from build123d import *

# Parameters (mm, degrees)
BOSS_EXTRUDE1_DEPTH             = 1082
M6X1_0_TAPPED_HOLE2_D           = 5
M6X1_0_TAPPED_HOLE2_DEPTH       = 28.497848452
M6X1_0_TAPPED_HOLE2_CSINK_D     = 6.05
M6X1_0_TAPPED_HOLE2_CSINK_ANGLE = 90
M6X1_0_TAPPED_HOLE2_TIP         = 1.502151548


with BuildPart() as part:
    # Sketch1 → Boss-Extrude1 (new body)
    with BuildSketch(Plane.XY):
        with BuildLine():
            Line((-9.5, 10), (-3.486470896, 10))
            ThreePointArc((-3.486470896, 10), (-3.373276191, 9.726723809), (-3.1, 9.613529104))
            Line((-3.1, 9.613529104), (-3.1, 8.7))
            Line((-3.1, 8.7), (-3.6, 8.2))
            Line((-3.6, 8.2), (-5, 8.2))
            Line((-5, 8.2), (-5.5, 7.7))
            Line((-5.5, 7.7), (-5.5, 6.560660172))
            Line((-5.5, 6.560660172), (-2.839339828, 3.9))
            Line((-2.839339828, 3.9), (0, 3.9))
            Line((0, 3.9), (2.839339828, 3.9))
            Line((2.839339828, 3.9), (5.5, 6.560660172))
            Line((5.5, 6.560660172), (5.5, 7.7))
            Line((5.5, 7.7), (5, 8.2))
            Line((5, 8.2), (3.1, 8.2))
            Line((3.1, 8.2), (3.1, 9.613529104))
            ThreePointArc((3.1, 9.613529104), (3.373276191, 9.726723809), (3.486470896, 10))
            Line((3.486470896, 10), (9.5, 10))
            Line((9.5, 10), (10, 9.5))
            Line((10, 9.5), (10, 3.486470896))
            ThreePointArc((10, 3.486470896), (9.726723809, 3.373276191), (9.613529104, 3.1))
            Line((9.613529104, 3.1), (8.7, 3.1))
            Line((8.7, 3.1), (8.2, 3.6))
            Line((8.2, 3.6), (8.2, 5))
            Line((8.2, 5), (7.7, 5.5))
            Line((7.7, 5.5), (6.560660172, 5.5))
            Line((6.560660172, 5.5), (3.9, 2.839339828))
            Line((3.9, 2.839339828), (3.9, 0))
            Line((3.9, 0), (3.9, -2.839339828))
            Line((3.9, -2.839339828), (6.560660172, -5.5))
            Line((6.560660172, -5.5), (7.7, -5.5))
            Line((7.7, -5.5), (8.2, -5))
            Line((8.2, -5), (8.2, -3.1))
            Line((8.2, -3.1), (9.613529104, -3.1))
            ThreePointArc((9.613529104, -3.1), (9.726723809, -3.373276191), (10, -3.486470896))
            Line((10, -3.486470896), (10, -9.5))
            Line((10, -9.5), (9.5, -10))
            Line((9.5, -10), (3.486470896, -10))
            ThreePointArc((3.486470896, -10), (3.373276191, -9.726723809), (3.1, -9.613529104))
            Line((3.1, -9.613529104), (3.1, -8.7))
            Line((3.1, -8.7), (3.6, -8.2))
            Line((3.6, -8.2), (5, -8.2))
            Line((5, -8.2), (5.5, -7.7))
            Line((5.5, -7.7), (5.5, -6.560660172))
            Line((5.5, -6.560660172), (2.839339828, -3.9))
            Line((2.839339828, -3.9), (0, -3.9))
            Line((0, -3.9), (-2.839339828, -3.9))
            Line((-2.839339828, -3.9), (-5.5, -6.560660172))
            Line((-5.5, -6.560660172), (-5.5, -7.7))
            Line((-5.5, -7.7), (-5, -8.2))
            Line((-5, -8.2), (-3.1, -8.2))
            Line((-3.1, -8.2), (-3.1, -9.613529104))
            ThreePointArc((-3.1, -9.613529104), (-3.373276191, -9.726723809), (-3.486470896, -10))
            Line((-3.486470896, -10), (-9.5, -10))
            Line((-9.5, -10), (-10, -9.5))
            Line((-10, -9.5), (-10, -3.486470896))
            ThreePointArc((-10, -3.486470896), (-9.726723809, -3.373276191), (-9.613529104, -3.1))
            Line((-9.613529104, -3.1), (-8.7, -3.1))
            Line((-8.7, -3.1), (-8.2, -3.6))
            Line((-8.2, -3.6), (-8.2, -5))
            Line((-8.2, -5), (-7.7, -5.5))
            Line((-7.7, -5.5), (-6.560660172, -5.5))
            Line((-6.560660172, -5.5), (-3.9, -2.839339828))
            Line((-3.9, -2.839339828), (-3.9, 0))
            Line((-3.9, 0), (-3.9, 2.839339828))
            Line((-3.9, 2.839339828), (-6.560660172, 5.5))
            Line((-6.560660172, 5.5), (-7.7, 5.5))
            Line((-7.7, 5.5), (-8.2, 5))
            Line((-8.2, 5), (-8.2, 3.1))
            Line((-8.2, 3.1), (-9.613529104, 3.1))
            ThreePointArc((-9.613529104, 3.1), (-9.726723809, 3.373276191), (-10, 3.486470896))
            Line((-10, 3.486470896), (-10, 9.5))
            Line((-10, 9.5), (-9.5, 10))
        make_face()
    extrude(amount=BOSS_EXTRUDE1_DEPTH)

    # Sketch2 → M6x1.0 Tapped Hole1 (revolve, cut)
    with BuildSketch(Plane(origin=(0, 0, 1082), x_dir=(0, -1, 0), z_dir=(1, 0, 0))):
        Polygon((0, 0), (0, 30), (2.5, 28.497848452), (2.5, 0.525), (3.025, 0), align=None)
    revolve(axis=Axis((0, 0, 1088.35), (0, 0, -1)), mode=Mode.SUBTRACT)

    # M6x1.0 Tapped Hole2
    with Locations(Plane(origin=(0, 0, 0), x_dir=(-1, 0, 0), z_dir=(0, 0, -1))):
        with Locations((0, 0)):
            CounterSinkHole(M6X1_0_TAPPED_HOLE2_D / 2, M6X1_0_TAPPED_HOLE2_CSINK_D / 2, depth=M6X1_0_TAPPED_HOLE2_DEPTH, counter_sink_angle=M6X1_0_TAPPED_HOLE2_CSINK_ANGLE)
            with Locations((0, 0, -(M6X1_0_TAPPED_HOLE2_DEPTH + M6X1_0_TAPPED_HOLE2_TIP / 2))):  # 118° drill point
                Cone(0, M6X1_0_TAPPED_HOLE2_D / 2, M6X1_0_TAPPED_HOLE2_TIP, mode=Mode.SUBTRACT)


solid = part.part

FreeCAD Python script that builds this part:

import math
import FreeCAD as App
import Part
import Sketcher
from FreeCAD import Vector
Q = App.Units.Quantity


def add_polygon(sketch, points):
    """Adds a closed chain of lines whose ends are joined by coincident constraints."""
    first, n = sketch.GeometryCount, len(points)
    for a, b in zip(points, points[1:] + points[:1]):
        sketch.addGeometry(Part.LineSegment(App.Vector(*a, 0), App.Vector(*b, 0)), False)
    for i in range(n):
        sketch.addConstraint(Sketcher.Constraint("Coincident", first + i, 2, first + (i + 1) % n, 1))

doc = App.newDocument("Part")
body = doc.addObject("PartDesign::Body", "Body")

sketch1 = body.newObject("Sketcher::SketchObject", "Sketch")
sketch1.AttachmentSupport = (doc.getObject("XY_Plane"), [""])
sketch1.MapMode = "FlatFace"
sketch1.addGeometry([
    Part.LineSegment(Vector(-3.49, 10, 0), Vector(-9.5, 10, 0)),
    Part.LineSegment(Vector(-9.5, 10, 0), Vector(-10, 9.5, 0)),
    Part.LineSegment(Vector(-10, 9.5, 0), Vector(-10, 3.49, 0)),
    Part.ArcOfCircle(Part.Circle(Vector(-10, 3.1, 0), Vector(0, 0, 1), 0.39), math.radians(0), math.radians(90)),
    Part.LineSegment(Vector(-9.61, 3.1, 0), Vector(-8.2, 3.1, 0)),
    Part.LineSegment(Vector(-8.2, 3.1, 0), Vector(-8.2, 5, 0)),
    Part.LineSegment(Vector(-8.2, 5, 0), Vector(-7.7, 5.5, 0)),
    Part.LineSegment(Vector(-7.7, 5.5, 0), Vector(-6.56, 5.5, 0)),
    Part.LineSegment(Vector(-6.56, 5.5, 0), Vector(-3.9, 2.84, 0)),
    Part.LineSegment(Vector(-3.9, 2.84, 0), Vector(-3.9, -2.84, 0)),
    Part.LineSegment(Vector(-3.9, -2.84, 0), Vector(-6.56, -5.5, 0)),
    Part.LineSegment(Vector(-6.56, -5.5, 0), Vector(-7.7, -5.5, 0)),
    Part.LineSegment(Vector(-7.7, -5.5, 0), Vector(-8.2, -5, 0)),
    Part.LineSegment(Vector(-8.2, -5, 0), Vector(-8.2, -3.6, 0)),
    Part.LineSegment(Vector(-8.2, -3.6, 0), Vector(-8.7, -3.1, 0)),
    Part.LineSegment(Vector(-8.7, -3.1, 0), Vector(-9.61, -3.1, 0)),
    Part.ArcOfCircle(Part.Circle(Vector(-10, -3.1, 0), Vector(0, 0, 1), 0.39), math.radians(-90), math.radians(0)),
    Part.LineSegment(Vector(-10, -3.49, 0), Vector(-10, -9.5, 0)),
    Part.LineSegment(Vector(-10, -9.5, 0), Vector(-9.5, -10, 0)),
    Part.LineSegment(Vector(-9.5, -10, 0), Vector(-3.49, -10, 0)),
    Part.ArcOfCircle(Part.Circle(Vector(-3.1, -10, 0), Vector(0, 0, 1), 0.39), math.radians(90), math.radians(180)),
    Part.LineSegment(Vector(-3.1, -9.61, 0), Vector(-3.1, -8.2, 0)),
    Part.LineSegment(Vector(-3.1, -8.2, 0), Vector(-5, -8.2, 0)),
    Part.LineSegment(Vector(-5, -8.2, 0), Vector(-5.5, -7.7, 0)),
    Part.LineSegment(Vector(-5.5, -7.7, 0), Vector(-5.5, -6.56, 0)),
    Part.LineSegment(Vector(-5.5, -6.56, 0), Vector(-2.84, -3.9, 0)),
    Part.LineSegment(Vector(-2.84, -3.9, 0), Vector(2.84, -3.9, 0)),
    Part.LineSegment(Vector(2.84, -3.9, 0), Vector(5.5, -6.56, 0)),
    Part.LineSegment(Vector(5.5, -6.56, 0), Vector(5.5, -7.7, 0)),
    Part.LineSegment(Vector(5.5, -7.7, 0), Vector(5, -8.2, 0)),
    Part.LineSegment(Vector(5, -8.2, 0), Vector(3.6, -8.2, 0)),
    Part.LineSegment(Vector(3.6, -8.2, 0), Vector(3.1, -8.7, 0)),
    Part.LineSegment(Vector(3.1, -8.7, 0), Vector(3.1, -9.61, 0)),
    Part.ArcOfCircle(Part.Circle(Vector(3.1, -10, 0), Vector(0, 0, 1), 0.39), math.radians(0), math.radians(90)),
    Part.LineSegment(Vector(3.49, -10, 0), Vector(9.5, -10, 0)),
    Part.LineSegment(Vector(9.5, -10, 0), Vector(10, -9.5, 0)),
    Part.LineSegment(Vector(10, -9.5, 0), Vector(10, -3.49, 0)),
    Part.ArcOfCircle(Part.Circle(Vector(10, -3.1, 0), Vector(0, 0, 1), 0.39), math.radians(-180), math.radians(-90)),
    Part.LineSegment(Vector(9.61, -3.1, 0), Vector(8.2, -3.1, 0)),
    Part.LineSegment(Vector(8.2, -3.1, 0), Vector(8.2, -5, 0)),
    Part.LineSegment(Vector(8.2, -5, 0), Vector(7.7, -5.5, 0)),
    Part.LineSegment(Vector(7.7, -5.5, 0), Vector(6.56, -5.5, 0)),
    Part.LineSegment(Vector(6.56, -5.5, 0), Vector(3.9, -2.84, 0)),
    Part.LineSegment(Vector(3.9, -2.84, 0), Vector(3.9, 2.84, 0)),
    Part.LineSegment(Vector(3.9, 2.84, 0), Vector(6.56, 5.5, 0)),
    Part.LineSegment(Vector(6.56, 5.5, 0), Vector(7.7, 5.5, 0)),
    Part.LineSegment(Vector(7.7, 5.5, 0), Vector(8.2, 5, 0)),
    Part.LineSegment(Vector(8.2, 5, 0), Vector(8.2, 3.6, 0)),
    Part.LineSegment(Vector(8.2, 3.6, 0), Vector(8.7, 3.1, 0)),
    Part.LineSegment(Vector(8.7, 3.1, 0), Vector(9.61, 3.1, 0)),
    Part.ArcOfCircle(Part.Circle(Vector(10, 3.1, 0), Vector(0, 0, 1), 0.39), math.radians(90), math.radians(180)),
    Part.LineSegment(Vector(10, 3.49, 0), Vector(10, 9.5, 0)),
    Part.LineSegment(Vector(10, 9.5, 0), Vector(9.5, 10, 0)),
    Part.LineSegment(Vector(9.5, 10, 0), Vector(3.49, 10, 0)),
    Part.ArcOfCircle(Part.Circle(Vector(3.1, 10, 0), Vector(0, 0, 1), 0.39), math.radians(-90), math.radians(0)),
    Part.LineSegment(Vector(3.1, 9.61, 0), Vector(3.1, 8.2, 0)),
    Part.LineSegment(Vector(3.1, 8.2, 0), Vector(5, 8.2, 0)),
    Part.LineSegment(Vector(5, 8.2, 0), Vector(5.5, 7.7, 0)),
    Part.LineSegment(Vector(5.5, 7.7, 0), Vector(5.5, 6.56, 0)),
    Part.LineSegment(Vector(5.5, 6.56, 0), Vector(2.84, 3.9, 0)),
    Part.LineSegment(Vector(2.84, 3.9, 0), Vector(-2.84, 3.9, 0)),
    Part.LineSegment(Vector(-2.84, 3.9, 0), Vector(-5.5, 6.56, 0)),
    Part.LineSegment(Vector(-5.5, 6.56, 0), Vector(-5.5, 7.7, 0)),
    Part.LineSegment(Vector(-5.5, 7.7, 0), Vector(-5, 8.2, 0)),
    Part.LineSegment(Vector(-5, 8.2, 0), Vector(-3.6, 8.2, 0)),
    Part.LineSegment(Vector(-3.6, 8.2, 0), Vector(-3.1, 8.7, 0)),
    Part.LineSegment(Vector(-3.1, 8.7, 0), Vector(-3.1, 9.61, 0)),
    Part.ArcOfCircle(Part.Circle(Vector(-3.1, 10, 0), Vector(0, 0, 1), 0.39), math.radians(-180), math.radians(-90)),
], False)
sketch1.addConstraint([
    Sketcher.Constraint("Coincident", 0, 2, 1, 1),
    Sketcher.Constraint("Coincident", 1, 2, 2, 1),
    Sketcher.Constraint("Coincident", 2, 2, 3, 2),
    Sketcher.Constraint("Coincident", 3, 1, 4, 1),
    Sketcher.Constraint("Coincident", 4, 2, 5, 1),
    Sketcher.Constraint("Coincident", 5, 2, 6, 1),
    Sketcher.Constraint("Coincident", 6, 2, 7, 1),
    Sketcher.Constraint("Coincident", 7, 2, 8, 1),
    Sketcher.Constraint("Coincident", 8, 2, 9, 1),
    Sketcher.Constraint("Coincident", 9, 2, 10, 1),
    Sketcher.Constraint("Coincident", 10, 2, 11, 1),
    Sketcher.Constraint("Coincident", 11, 2, 12, 1),
    Sketcher.Constraint("Coincident", 12, 2, 13, 1),
    Sketcher.Constraint("Coincident", 13, 2, 14, 1),
    Sketcher.Constraint("Coincident", 14, 2, 15, 1),
    Sketcher.Constraint("Coincident", 15, 2, 16, 2),
    Sketcher.Constraint("Coincident", 16, 1, 17, 1),
    Sketcher.Constraint("Coincident", 17, 2, 18, 1),
    Sketcher.Constraint("Coincident", 18, 2, 19, 1),
    Sketcher.Constraint("Coincident", 19, 2, 20, 2),
    Sketcher.Constraint("Coincident", 20, 1, 21, 1),
    Sketcher.Constraint("Coincident", 21, 2, 22, 1),
    Sketcher.Constraint("Coincident", 22, 2, 23, 1),
    Sketcher.Constraint("Coincident", 23, 2, 24, 1),
    Sketcher.Constraint("Coincident", 24, 2, 25, 1),
    Sketcher.Constraint("Coincident", 25, 2, 26, 1),
    Sketcher.Constraint("Coincident", 26, 2, 27, 1),
    Sketcher.Constraint("Coincident", 27, 2, 28, 1),
    Sketcher.Constraint("Coincident", 28, 2, 29, 1),
    Sketcher.Constraint("Coincident", 29, 2, 30, 1),
    Sketcher.Constraint("Coincident", 30, 2, 31, 1),
    Sketcher.Constraint("Coincident", 31, 2, 32, 1),
    Sketcher.Constraint("Coincident", 32, 2, 33, 2),
    Sketcher.Constraint("Coincident", 33, 1, 34, 1),
    Sketcher.Constraint("Coincident", 34, 2, 35, 1),
    Sketcher.Constraint("Coincident", 35, 2, 36, 1),
    Sketcher.Constraint("Coincident", 36, 2, 37, 2),
    Sketcher.Constraint("Coincident", 37, 1, 38, 1),
    Sketcher.Constraint("Coincident", 38, 2, 39, 1),
    Sketcher.Constraint("Coincident", 39, 2, 40, 1),
    Sketcher.Constraint("Coincident", 40, 2, 41, 1),
    Sketcher.Constraint("Coincident", 41, 2, 42, 1),
    Sketcher.Constraint("Coincident", 42, 2, 43, 1),
    Sketcher.Constraint("Coincident", 43, 2, 44, 1),
    Sketcher.Constraint("Coincident", 44, 2, 45, 1),
    Sketcher.Constraint("Coincident", 45, 2, 46, 1),
    Sketcher.Constraint("Coincident", 46, 2, 47, 1),
    Sketcher.Constraint("Coincident", 47, 2, 48, 1),
    Sketcher.Constraint("Coincident", 48, 2, 49, 1),
    Sketcher.Constraint("Coincident", 49, 2, 50, 2),
    Sketcher.Constraint("Coincident", 50, 1, 51, 1),
    Sketcher.Constraint("Coincident", 51, 2, 52, 1),
    Sketcher.Constraint("Coincident", 52, 2, 53, 1),
    Sketcher.Constraint("Coincident", 53, 2, 54, 2),
    Sketcher.Constraint("Coincident", 54, 1, 55, 1),
    Sketcher.Constraint("Coincident", 55, 2, 56, 1),
    Sketcher.Constraint("Coincident", 56, 2, 57, 1),
    Sketcher.Constraint("Coincident", 57, 2, 58, 1),
    Sketcher.Constraint("Coincident", 58, 2, 59, 1),
    Sketcher.Constraint("Coincident", 59, 2, 60, 1),
    Sketcher.Constraint("Coincident", 60, 2, 61, 1),
    Sketcher.Constraint("Coincident", 61, 2, 62, 1),
    Sketcher.Constraint("Coincident", 62, 2, 63, 1),
    Sketcher.Constraint("Coincident", 63, 2, 64, 1),
    Sketcher.Constraint("Coincident", 64, 2, 65, 1),
    Sketcher.Constraint("Coincident", 65, 2, 66, 1),
    Sketcher.Constraint("Coincident", 66, 2, 67, 2),
    Sketcher.Constraint("Coincident", 67, 1, 0, 1),
    Sketcher.Constraint("Horizontal", 0),
    Sketcher.Constraint("Vertical", 2),
    Sketcher.Constraint("Horizontal", 4),
    Sketcher.Constraint("Vertical", 5),
    Sketcher.Constraint("Horizontal", 7),
    Sketcher.Constraint("Vertical", 9),
    Sketcher.Constraint("Horizontal", 11),
    Sketcher.Constraint("Vertical", 13),
    Sketcher.Constraint("Horizontal", 15),
    Sketcher.Constraint("Vertical", 17),
    Sketcher.Constraint("Horizontal", 19),
    Sketcher.Constraint("Vertical", 21),
    Sketcher.Constraint("Horizontal", 22),
    Sketcher.Constraint("Vertical", 24),
    Sketcher.Constraint("Horizontal", 26),
    Sketcher.Constraint("Vertical", 28),
    Sketcher.Constraint("Horizontal", 30),
    Sketcher.Constraint("Vertical", 32),
    Sketcher.Constraint("Horizontal", 34),
    Sketcher.Constraint("Vertical", 36),
    Sketcher.Constraint("Horizontal", 38),
    Sketcher.Constraint("Vertical", 39),
    Sketcher.Constraint("Horizontal", 41),
    Sketcher.Constraint("Vertical", 43),
    Sketcher.Constraint("Horizontal", 45),
    Sketcher.Constraint("Vertical", 47),
    Sketcher.Constraint("Horizontal", 49),
    Sketcher.Constraint("Vertical", 51),
    Sketcher.Constraint("Horizontal", 53),
    Sketcher.Constraint("Vertical", 55),
    Sketcher.Constraint("Horizontal", 56),
    Sketcher.Constraint("Vertical", 58),
    Sketcher.Constraint("Horizontal", 60),
    Sketcher.Constraint("Vertical", 62),
    Sketcher.Constraint("Horizontal", 64),
    Sketcher.Constraint("Vertical", 66),
    Sketcher.Constraint("Equal", 3, 16),
    Sketcher.Constraint("Equal", 16, 20),
    Sketcher.Constraint("Equal", 20, 33),
    Sketcher.Constraint("Equal", 33, 37),
    Sketcher.Constraint("Equal", 37, 50),
    Sketcher.Constraint("Equal", 50, 54),
    Sketcher.Constraint("Equal", 54, 67),
    Sketcher.Constraint("Symmetric", 3, 3, 37, 3, -1, 1),
    Sketcher.Constraint("Symmetric", 16, 3, 50, 3, -1, 1),
    Sketcher.Constraint("Symmetric", 20, 3, 54, 3, -1, 1),
    Sketcher.Constraint("Symmetric", 33, 3, 67, 3, -1, 1),
    Sketcher.Constraint("Symmetric", 0, 2, 34, 2, -1, 1),
    Sketcher.Constraint("Symmetric", 1, 2, 35, 2, -1, 1),
    Sketcher.Constraint("Symmetric", 4, 2, 38, 2, -1, 1),
    Sketcher.Constraint("Symmetric", 6, 2, 40, 2, -1, 1),
    Sketcher.Constraint("Symmetric", 8, 2, 42, 2, -1, 1),
    Sketcher.Constraint("Symmetric", 10, 2, 44, 2, -1, 1),
    Sketcher.Constraint("Symmetric", 12, 2, 46, 2, -1, 1),
    Sketcher.Constraint("Symmetric", 14, 2, 48, 2, -1, 1),
    Sketcher.Constraint("Symmetric", 17, 2, 51, 2, -1, 1),
    Sketcher.Constraint("Symmetric", 18, 2, 52, 2, -1, 1),
    Sketcher.Constraint("Symmetric", 21, 2, 55, 2, -1, 1),
    Sketcher.Constraint("Symmetric", 23, 2, 57, 2, -1, 1),
    Sketcher.Constraint("Symmetric", 25, 2, 59, 2, -1, 1),
    Sketcher.Constraint("Symmetric", 27, 2, 61, 2, -1, 1),
    Sketcher.Constraint("Symmetric", 29, 2, 63, 2, -1, 1),
    Sketcher.Constraint("Symmetric", 31, 2, 65, 2, -1, 1),
    Sketcher.Constraint("Symmetric", 20, 3, 33, 3, -2),
    Sketcher.Constraint("Symmetric", 16, 3, 37, 3, -2),
    Sketcher.Constraint("Symmetric", 24, 2, 27, 2, -2),
    Sketcher.Constraint("Symmetric", 22, 2, 29, 2, -2),
    Sketcher.Constraint("Symmetric", 18, 2, 34, 2, -2),
    Sketcher.Constraint("Symmetric", 17, 2, 35, 2, -2),
    Sketcher.Constraint("Symmetric", 12, 2, 39, 2, -2),
    Sketcher.Constraint("Symmetric", 11, 2, 40, 2, -2),
    Sketcher.Constraint("Parallel", 1, 6),
    Sketcher.Constraint("Perpendicular", 6, 8),
    Sketcher.Constraint("Perpendicular", 8, 10),
    Sketcher.Constraint("Perpendicular", 10, 12),
    Sketcher.Constraint("Parallel", 12, 14),
    Sketcher.Constraint("Parallel", 14, 18),
    Sketcher.Constraint("Parallel", 18, 23),
    Sketcher.Constraint("Perpendicular", 23, 25),
    Sketcher.Constraint("Perpendicular", 25, 27),
    Sketcher.Constraint("Perpendicular", 27, 29),
    Sketcher.Constraint("Parallel", 29, 31),
    Sketcher.Constraint("Perpendicular", 40, 42),
    Sketcher.Constraint("Perpendicular", 42, 44),
    Sketcher.Constraint("Perpendicular", 44, 46),
    Sketcher.Constraint("Parallel", 46, 48),
    Sketcher.Constraint("Parallel", 52, 57),
    Sketcher.Constraint("Perpendicular", 57, 59),
    Sketcher.Constraint("Perpendicular", 59, 61),
    Sketcher.Constraint("Perpendicular", 61, 63),
    Sketcher.Constraint("Parallel", 63, 65),
    Sketcher.Constraint("Horizontal", 67, 3, 0, 2),
    Sketcher.Constraint("Horizontal", 50, 3, 3, 1),
    Sketcher.Constraint("Horizontal", 37, 3, 14, 2),
    Sketcher.Constraint("Horizontal", 9, 2, 42, 2),
    Sketcher.Constraint("Vertical", 16, 3, 1, 2),
    Sketcher.Constraint("Vertical", 67, 3, 20, 1),
    Sketcher.Constraint("Vertical", 54, 3, 31, 2),
    Sketcher.Constraint("Equal", 53, 2),
    Sketcher.Constraint("Equal", 56, 5),
    Sketcher.Constraint("Equal", 60, 9),
    Sketcher.Constraint("Equal", 64, 13),
    Sketcher.Constraint("Equal", 38, 21),
    Sketcher.Constraint("Equal", 45, 24),
    Sketcher.Constraint("Equal", 1, 6),
    Sketcher.Constraint("Equal", 12, 14),
    Sketcher.Constraint("Equal", 18, 23),
    Sketcher.Constraint("Equal", 10, 25),
    Sketcher.Constraint("DistanceX", 22, 2, 22, 1, 1.9),
    Sketcher.Constraint("DistanceX", 30, 2, 30, 1, 1.4),
    Sketcher.Constraint("DistanceX", 3, 3, -1, 1, 10.0),
    Sketcher.Constraint("DistanceY", -1, 1, 5, 2, 5.0),
    Sketcher.Constraint("DistanceX", 4, 2, -1, 1, 8.2),
    Sketcher.Constraint("DistanceX", 8, 2, -1, 1, 3.9),
    Sketcher.Constraint("Radius", 3, 0.386471),
    Sketcher.Constraint("DistanceX", 7, 1, 7, 2, 1.13934),
])
pad1 = body.newObject("PartDesign::Pad", "Pad")
pad1.Profile = sketch1
pad1.Length = 1082

sketch2 = body.newObject("Sketcher::SketchObject", "Sketch001")
sketch2.AttachmentSupport = (doc.getObject("YZ_Plane"), [""])
sketch2.MapMode = "FlatFace"
add_polygon(sketch2, [(0, 1052), (0, 1082), (-3, 1082), (-2.5, 1081.5), (-2.5, 1053.5)])
sketch2.addConstraint([
    Sketcher.Constraint("Vertical", 0),
    Sketcher.Constraint("Horizontal", 1),
    Sketcher.Constraint("Vertical", 3),
    Sketcher.Constraint("PointOnObject", 0, 2, -2),
    Sketcher.Constraint("DistanceY", 0, 1, 0, 2, 30.0),
    Sketcher.Constraint("Angle", 2, Q("-45 deg")),
    Sketcher.Constraint("Angle", 4, Q("-31 deg")),
    Sketcher.Constraint("DistanceY", -1, 1, 0, 2, 1082.0),
    Sketcher.Constraint("DistanceX", 2, 2, -1, 1, 2.5),
    Sketcher.Constraint("DistanceX", 1, 2, 1, 1, 3.025),
])
groove = body.newObject("PartDesign::Groove", "Groove")
groove.Profile = sketch2
groove.ReferenceAxis = (sketch2, ["V_Axis"])
groove.Angle = 360

sketch3 = body.newObject("Sketcher::SketchObject", "Sketch002")
sketch3.AttachmentSupport = (doc.getObject("XY_Plane"), [""])
sketch3.MapMode = "FlatFace"
sketch3.addGeometry(Part.Circle(Vector(0, 0, 0), Vector(0, 0, 1), 2.5), False)
sketch3.addConstraint([
    Sketcher.Constraint("Coincident", 0, 3, -1, 1),
    Sketcher.Constraint("Diameter", 0, 5.0),
])
doc.recompute()
hole = body.newObject("PartDesign::Hole", "Hole")
hole.Profile = sketch3
hole.ThreadType = "None"
hole.Diameter = 5
hole.DepthType = "Dimension"
hole.Depth = 28.497848
hole.DrillPoint = "Angled"
hole.DrillPointAngle = 118
hole.HoleCutType = "Countersink"
hole.HoleCutDiameter = 6.05
hole.HoleCutCountersinkAngle = 90
hole.Reversed = True

doc.recompute()
